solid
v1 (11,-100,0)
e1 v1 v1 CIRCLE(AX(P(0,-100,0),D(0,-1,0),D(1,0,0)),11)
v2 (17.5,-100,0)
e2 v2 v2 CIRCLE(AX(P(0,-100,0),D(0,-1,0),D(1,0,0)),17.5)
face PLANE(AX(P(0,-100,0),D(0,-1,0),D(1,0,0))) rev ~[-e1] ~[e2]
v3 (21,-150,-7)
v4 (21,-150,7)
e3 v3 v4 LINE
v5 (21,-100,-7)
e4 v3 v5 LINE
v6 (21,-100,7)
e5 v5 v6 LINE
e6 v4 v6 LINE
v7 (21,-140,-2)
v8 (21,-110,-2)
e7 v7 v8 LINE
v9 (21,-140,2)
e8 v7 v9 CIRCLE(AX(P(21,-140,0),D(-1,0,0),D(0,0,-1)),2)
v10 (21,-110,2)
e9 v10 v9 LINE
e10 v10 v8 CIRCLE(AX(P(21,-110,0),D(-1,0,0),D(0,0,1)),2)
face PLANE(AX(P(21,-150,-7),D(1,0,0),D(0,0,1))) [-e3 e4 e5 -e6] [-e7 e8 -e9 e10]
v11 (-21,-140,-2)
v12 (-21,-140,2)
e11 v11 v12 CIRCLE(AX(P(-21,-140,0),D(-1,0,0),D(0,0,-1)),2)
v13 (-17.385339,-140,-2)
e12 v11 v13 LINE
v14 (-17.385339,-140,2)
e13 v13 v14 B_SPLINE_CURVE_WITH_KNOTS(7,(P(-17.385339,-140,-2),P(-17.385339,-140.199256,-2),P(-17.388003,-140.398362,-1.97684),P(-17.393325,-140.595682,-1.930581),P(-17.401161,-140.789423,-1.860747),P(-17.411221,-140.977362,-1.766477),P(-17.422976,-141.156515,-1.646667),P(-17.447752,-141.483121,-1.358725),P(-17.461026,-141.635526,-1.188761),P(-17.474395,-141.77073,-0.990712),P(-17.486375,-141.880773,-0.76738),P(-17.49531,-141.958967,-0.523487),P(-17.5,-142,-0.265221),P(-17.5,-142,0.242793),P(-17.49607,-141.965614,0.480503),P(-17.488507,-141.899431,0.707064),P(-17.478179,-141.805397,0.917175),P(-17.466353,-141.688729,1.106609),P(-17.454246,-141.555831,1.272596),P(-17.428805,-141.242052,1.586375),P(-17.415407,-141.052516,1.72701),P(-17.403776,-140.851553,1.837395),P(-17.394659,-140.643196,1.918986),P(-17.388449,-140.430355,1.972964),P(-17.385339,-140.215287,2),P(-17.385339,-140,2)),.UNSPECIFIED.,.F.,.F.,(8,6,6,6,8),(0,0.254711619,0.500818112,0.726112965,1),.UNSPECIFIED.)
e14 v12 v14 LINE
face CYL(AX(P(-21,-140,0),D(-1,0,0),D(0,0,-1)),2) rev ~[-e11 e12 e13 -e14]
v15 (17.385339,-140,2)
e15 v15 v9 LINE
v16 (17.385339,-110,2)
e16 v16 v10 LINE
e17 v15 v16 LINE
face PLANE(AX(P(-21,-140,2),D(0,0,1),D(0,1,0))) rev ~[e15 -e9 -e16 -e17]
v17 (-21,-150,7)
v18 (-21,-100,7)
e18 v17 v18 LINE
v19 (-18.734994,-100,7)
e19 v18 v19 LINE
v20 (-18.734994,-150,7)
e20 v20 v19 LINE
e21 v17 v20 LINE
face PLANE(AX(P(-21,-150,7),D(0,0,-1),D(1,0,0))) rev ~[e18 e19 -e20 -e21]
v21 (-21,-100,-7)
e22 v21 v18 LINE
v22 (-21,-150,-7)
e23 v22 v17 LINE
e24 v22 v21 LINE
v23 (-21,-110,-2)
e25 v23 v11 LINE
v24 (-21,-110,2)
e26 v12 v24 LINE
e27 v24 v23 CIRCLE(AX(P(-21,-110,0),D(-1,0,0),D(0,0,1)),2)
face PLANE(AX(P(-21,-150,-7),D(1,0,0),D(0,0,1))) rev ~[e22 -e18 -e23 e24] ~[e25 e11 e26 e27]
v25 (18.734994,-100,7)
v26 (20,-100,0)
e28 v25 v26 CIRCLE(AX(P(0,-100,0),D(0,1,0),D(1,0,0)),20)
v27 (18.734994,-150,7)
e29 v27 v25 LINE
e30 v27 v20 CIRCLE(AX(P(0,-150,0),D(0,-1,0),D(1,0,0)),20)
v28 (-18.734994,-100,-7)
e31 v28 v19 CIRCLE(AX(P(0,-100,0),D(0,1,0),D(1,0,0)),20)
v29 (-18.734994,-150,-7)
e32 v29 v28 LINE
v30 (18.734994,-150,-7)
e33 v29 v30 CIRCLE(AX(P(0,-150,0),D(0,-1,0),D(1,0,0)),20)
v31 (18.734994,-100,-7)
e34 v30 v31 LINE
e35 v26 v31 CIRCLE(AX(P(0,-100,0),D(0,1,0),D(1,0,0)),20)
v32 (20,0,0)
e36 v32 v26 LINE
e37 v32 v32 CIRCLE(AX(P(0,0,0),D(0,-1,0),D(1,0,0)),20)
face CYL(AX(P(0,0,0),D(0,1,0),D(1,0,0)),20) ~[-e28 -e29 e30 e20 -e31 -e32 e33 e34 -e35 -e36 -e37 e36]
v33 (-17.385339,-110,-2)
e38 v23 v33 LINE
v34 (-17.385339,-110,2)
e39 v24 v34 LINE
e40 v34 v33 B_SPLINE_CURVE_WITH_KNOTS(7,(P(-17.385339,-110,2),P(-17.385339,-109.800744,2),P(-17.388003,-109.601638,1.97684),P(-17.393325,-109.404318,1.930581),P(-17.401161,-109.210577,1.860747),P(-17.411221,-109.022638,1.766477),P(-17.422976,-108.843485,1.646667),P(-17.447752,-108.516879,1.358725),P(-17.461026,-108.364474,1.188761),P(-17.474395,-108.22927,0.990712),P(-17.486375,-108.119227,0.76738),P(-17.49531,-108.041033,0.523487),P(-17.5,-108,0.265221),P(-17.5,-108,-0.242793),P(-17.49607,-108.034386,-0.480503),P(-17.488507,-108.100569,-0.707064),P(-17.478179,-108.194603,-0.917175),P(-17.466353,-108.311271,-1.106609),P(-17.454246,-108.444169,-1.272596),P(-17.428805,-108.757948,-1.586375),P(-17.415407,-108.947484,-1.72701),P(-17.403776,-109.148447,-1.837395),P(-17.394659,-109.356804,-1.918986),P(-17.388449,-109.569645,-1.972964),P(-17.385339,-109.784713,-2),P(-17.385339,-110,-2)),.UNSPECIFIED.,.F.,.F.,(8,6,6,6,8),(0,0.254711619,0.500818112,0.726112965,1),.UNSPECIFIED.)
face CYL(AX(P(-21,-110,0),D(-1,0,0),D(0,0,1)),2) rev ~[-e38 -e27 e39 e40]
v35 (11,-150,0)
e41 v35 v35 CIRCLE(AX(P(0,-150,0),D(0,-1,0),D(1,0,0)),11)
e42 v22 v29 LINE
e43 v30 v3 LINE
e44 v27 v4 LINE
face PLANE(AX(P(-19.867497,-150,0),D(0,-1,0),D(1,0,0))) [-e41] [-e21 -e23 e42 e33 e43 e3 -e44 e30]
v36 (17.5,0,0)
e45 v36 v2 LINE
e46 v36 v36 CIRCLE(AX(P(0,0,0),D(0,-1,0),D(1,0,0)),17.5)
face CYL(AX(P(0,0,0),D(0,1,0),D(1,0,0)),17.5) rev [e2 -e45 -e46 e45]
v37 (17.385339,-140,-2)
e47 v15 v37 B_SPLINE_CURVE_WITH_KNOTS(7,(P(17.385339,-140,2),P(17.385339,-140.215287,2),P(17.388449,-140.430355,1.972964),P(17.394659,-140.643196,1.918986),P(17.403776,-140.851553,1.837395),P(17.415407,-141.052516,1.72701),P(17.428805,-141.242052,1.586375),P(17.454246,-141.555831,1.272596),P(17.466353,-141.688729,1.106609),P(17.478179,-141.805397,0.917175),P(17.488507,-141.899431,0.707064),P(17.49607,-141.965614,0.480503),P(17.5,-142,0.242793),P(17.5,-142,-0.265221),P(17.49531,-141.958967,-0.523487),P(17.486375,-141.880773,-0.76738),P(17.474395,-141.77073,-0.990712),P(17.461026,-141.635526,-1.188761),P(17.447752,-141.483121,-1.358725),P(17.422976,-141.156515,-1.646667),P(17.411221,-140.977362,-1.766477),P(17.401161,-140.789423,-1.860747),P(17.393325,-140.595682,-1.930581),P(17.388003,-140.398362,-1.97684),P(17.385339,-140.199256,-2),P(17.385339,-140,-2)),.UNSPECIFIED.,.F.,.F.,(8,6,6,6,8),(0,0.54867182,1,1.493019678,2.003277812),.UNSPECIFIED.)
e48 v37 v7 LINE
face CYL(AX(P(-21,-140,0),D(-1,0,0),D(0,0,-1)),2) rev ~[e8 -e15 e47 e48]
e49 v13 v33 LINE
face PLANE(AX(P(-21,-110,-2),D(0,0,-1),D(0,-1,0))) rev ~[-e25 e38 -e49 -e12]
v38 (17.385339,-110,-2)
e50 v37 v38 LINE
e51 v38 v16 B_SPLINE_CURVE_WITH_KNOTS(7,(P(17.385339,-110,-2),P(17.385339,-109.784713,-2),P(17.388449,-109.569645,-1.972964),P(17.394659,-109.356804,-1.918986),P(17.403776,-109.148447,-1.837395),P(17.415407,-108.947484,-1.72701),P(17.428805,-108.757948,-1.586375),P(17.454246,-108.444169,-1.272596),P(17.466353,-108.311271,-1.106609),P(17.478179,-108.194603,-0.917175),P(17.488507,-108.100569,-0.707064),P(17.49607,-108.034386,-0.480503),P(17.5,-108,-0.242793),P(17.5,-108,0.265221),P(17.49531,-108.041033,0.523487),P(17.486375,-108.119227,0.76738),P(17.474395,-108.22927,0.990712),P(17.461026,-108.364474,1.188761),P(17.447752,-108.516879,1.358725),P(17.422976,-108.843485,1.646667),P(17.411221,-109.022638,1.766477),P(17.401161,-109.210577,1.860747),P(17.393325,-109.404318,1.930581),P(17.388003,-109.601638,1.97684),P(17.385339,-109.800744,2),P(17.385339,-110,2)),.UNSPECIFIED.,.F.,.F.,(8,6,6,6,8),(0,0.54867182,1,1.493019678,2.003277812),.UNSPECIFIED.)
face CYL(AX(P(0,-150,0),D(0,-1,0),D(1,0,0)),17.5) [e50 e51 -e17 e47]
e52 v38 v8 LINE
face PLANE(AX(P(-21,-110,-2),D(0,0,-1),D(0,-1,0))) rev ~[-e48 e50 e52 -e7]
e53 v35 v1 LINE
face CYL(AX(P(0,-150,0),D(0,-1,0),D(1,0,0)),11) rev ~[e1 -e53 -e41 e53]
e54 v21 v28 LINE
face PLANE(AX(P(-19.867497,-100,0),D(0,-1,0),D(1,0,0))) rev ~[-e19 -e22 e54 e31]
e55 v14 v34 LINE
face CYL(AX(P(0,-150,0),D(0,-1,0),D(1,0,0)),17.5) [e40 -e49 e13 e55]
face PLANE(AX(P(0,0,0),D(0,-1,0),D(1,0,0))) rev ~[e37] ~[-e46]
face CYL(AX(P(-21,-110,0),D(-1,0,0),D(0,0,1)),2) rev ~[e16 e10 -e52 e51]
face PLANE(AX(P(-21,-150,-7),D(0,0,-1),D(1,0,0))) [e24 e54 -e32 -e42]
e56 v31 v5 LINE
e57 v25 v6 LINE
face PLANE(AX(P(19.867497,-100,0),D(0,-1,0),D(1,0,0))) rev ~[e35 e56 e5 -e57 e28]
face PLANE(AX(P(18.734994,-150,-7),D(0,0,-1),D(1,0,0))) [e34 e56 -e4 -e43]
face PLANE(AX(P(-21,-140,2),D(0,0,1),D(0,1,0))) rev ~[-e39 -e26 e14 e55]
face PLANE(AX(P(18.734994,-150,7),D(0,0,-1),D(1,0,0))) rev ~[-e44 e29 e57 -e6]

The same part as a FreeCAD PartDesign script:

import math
import FreeCAD as App
import Part
import Sketcher
from FreeCAD import Vector
Q = App.Units.Quantity


def add_polygon(sketch, points):
    """Adds a closed chain of lines whose ends are joined by coincident constraints."""
    first, n = sketch.GeometryCount, len(points)
    for a, b in zip(points, points[1:] + points[:1]):
        sketch.addGeometry(Part.LineSegment(App.Vector(*a, 0), App.Vector(*b, 0)), False)
    for i in range(n):
        sketch.addConstraint(Sketcher.Constraint("Coincident", first + i, 2, first + (i + 1) % n, 1))

doc = App.newDocument("Part")
body = doc.addObject("PartDesign::Body", "Body")

# Sketch on XZ plane
sketch1 = body.newObject("Sketcher::SketchObject", "Sketch")
sketch1.AttachmentSupport = (doc.getObject("XZ_Plane"), [""])
sketch1.MapMode = "FlatFace"
sketch1.addGeometry([
    Part.Circle(Vector(0, 0, 0), Vector(0, 0, 1), 20),
    Part.Circle(Vector(0, 0, 0), Vector(0, 0, 1), 18),
], False)
sketch1.addConstraint([
    Sketcher.Constraint("Coincident", 0, 3, -1, 1),
    Sketcher.Constraint("Coincident", 1, 3, -1, 1),
    Sketcher.Constraint("Diameter", 0, Q("40 mm")),
    Sketcher.Constraint("Diameter", 1, Q("35 mm")),
])
pad1 = body.newObject("PartDesign::Pad", "Pad")
pad1.Profile = sketch1
pad1.Length = 150

# Sketch on XZ plane
sketch2 = body.newObject("Sketcher::SketchObject", "Sketch001")
sketch2.AttachmentSupport = (doc.getObject("XZ_Plane"), [""])
sketch2.MapMode = "FlatFace"
sketch2.AttachmentOffset = App.Placement(Vector(0, 0, 150), App.Rotation())
add_polygon(sketch2, [(-21, 7), (-21, -7), (-18.7, -7), (-18.7, 7)])  # lines 0-3
add_polygon(sketch2, [(18.7, 7), (18.7, -7), (21, -7), (21, 7)])  # lines 4-7
sketch2.addConstraint([
    Sketcher.Constraint("Vertical", 0),
    Sketcher.Constraint("Horizontal", 1),
    Sketcher.Constraint("Vertical", 2),
    Sketcher.Constraint("Horizontal", 3),
    Sketcher.Constraint("Vertical", 4),
    Sketcher.Constraint("Horizontal", 5),
    Sketcher.Constraint("Vertical", 6),
    Sketcher.Constraint("Horizontal", 7),
    Sketcher.Constraint("Symmetric", 2, 2, 4, 2, -1, 1),
    Sketcher.Constraint("Symmetric", 0, 2, 6, 2, -1, 1),
    Sketcher.Constraint("Horizontal", 1, 2, 4, 2),
    Sketcher.Constraint("DistanceY", 0, 2, 0, 1, Q("14 mm")),
    Sketcher.Constraint("DistanceX", 0, 2, -1, 1, Q("21 mm")),
    Sketcher.Constraint("DistanceX", 1, 1, 1, 2, Q("2.265006 mm")),
])
pad2 = body.newObject("PartDesign::Pad", "Pad001")
pad2.Profile = sketch2
pad2.Length = 50
pad2.Reversed = True

# Sketch on YZ plane
sketch3 = body.newObject("Sketcher::SketchObject", "Sketch002")
sketch3.AttachmentSupport = (doc.getObject("YZ_Plane"), [""])
sketch3.MapMode = "FlatFace"
sketch3.AttachmentOffset = App.Placement(Vector(0, 0, -21), App.Rotation())
sketch3.addGeometry([
    Part.ArcOfCircle(Part.Circle(Vector(-110, 0, 0), Vector(0, 0, 1), 2), math.radians(-90), math.radians(90)),
    Part.LineSegment(Vector(-110, -2, 0), Vector(-140, -2, 0)),
    Part.ArcOfCircle(Part.Circle(Vector(-140, 0, 0), Vector(0, 0, 1), 2), math.radians(90), math.radians(270)),
    Part.LineSegment(Vector(-140, 2, 0), Vector(-110, 2, 0)),
], False)
sketch3.addConstraint([
    Sketcher.Constraint("Tangent", 0, 1, 1, 1),
    Sketcher.Constraint("Tangent", 1, 2, 2, 2),
    Sketcher.Constraint("Tangent", 2, 1, 3, 1),
    Sketcher.Constraint("Tangent", 3, 2, 0, 2),
    Sketcher.Constraint("Horizontal", 1),
    Sketcher.Constraint("Horizontal", 3),
    Sketcher.Constraint("PointOnObject", 0, 3, -1),
    Sketcher.Constraint("Radius", 0, Q("2 mm")),
    Sketcher.Constraint("DistanceX", 1, 2, 1, 1, Q("30 mm")),
    Sketcher.Constraint("DistanceX", 0, 3, -1, 1, Q("110 mm")),
])
pocket1 = body.newObject("PartDesign::Pocket", "Pocket")
pocket1.Profile = sketch3
pocket1.Type = "ThroughAll"
pocket1.Reversed = True

# Sketch on XZ plane
sketch4 = body.newObject("Sketcher::SketchObject", "Sketch003")
sketch4.AttachmentSupport = (doc.getObject("XZ_Plane"), [""])
sketch4.MapMode = "FlatFace"
sketch4.AttachmentOffset = App.Placement(Vector(0, 0, 150), App.Rotation())
sketch4.addGeometry([
    Part.Circle(Vector(0, 0, 0), Vector(0, 0, 1), 18),
    Part.Circle(Vector(0, 0, 0), Vector(0, 0, 1), 11),
], False)
sketch4.addConstraint([
    Sketcher.Constraint("Coincident", 0, 3, -1, 1),
    Sketcher.Constraint("Coincident", 1, 3, -1, 1),
    Sketcher.Constraint("Diameter", 0, Q("35 mm")),
    Sketcher.Constraint("Diameter", 1, Q("22 mm")),
])
pad3 = body.newObject("PartDesign::Pad", "Pad002")
pad3.Profile = sketch4
pad3.Length = 50
pad3.Reversed = True

doc.recompute()
